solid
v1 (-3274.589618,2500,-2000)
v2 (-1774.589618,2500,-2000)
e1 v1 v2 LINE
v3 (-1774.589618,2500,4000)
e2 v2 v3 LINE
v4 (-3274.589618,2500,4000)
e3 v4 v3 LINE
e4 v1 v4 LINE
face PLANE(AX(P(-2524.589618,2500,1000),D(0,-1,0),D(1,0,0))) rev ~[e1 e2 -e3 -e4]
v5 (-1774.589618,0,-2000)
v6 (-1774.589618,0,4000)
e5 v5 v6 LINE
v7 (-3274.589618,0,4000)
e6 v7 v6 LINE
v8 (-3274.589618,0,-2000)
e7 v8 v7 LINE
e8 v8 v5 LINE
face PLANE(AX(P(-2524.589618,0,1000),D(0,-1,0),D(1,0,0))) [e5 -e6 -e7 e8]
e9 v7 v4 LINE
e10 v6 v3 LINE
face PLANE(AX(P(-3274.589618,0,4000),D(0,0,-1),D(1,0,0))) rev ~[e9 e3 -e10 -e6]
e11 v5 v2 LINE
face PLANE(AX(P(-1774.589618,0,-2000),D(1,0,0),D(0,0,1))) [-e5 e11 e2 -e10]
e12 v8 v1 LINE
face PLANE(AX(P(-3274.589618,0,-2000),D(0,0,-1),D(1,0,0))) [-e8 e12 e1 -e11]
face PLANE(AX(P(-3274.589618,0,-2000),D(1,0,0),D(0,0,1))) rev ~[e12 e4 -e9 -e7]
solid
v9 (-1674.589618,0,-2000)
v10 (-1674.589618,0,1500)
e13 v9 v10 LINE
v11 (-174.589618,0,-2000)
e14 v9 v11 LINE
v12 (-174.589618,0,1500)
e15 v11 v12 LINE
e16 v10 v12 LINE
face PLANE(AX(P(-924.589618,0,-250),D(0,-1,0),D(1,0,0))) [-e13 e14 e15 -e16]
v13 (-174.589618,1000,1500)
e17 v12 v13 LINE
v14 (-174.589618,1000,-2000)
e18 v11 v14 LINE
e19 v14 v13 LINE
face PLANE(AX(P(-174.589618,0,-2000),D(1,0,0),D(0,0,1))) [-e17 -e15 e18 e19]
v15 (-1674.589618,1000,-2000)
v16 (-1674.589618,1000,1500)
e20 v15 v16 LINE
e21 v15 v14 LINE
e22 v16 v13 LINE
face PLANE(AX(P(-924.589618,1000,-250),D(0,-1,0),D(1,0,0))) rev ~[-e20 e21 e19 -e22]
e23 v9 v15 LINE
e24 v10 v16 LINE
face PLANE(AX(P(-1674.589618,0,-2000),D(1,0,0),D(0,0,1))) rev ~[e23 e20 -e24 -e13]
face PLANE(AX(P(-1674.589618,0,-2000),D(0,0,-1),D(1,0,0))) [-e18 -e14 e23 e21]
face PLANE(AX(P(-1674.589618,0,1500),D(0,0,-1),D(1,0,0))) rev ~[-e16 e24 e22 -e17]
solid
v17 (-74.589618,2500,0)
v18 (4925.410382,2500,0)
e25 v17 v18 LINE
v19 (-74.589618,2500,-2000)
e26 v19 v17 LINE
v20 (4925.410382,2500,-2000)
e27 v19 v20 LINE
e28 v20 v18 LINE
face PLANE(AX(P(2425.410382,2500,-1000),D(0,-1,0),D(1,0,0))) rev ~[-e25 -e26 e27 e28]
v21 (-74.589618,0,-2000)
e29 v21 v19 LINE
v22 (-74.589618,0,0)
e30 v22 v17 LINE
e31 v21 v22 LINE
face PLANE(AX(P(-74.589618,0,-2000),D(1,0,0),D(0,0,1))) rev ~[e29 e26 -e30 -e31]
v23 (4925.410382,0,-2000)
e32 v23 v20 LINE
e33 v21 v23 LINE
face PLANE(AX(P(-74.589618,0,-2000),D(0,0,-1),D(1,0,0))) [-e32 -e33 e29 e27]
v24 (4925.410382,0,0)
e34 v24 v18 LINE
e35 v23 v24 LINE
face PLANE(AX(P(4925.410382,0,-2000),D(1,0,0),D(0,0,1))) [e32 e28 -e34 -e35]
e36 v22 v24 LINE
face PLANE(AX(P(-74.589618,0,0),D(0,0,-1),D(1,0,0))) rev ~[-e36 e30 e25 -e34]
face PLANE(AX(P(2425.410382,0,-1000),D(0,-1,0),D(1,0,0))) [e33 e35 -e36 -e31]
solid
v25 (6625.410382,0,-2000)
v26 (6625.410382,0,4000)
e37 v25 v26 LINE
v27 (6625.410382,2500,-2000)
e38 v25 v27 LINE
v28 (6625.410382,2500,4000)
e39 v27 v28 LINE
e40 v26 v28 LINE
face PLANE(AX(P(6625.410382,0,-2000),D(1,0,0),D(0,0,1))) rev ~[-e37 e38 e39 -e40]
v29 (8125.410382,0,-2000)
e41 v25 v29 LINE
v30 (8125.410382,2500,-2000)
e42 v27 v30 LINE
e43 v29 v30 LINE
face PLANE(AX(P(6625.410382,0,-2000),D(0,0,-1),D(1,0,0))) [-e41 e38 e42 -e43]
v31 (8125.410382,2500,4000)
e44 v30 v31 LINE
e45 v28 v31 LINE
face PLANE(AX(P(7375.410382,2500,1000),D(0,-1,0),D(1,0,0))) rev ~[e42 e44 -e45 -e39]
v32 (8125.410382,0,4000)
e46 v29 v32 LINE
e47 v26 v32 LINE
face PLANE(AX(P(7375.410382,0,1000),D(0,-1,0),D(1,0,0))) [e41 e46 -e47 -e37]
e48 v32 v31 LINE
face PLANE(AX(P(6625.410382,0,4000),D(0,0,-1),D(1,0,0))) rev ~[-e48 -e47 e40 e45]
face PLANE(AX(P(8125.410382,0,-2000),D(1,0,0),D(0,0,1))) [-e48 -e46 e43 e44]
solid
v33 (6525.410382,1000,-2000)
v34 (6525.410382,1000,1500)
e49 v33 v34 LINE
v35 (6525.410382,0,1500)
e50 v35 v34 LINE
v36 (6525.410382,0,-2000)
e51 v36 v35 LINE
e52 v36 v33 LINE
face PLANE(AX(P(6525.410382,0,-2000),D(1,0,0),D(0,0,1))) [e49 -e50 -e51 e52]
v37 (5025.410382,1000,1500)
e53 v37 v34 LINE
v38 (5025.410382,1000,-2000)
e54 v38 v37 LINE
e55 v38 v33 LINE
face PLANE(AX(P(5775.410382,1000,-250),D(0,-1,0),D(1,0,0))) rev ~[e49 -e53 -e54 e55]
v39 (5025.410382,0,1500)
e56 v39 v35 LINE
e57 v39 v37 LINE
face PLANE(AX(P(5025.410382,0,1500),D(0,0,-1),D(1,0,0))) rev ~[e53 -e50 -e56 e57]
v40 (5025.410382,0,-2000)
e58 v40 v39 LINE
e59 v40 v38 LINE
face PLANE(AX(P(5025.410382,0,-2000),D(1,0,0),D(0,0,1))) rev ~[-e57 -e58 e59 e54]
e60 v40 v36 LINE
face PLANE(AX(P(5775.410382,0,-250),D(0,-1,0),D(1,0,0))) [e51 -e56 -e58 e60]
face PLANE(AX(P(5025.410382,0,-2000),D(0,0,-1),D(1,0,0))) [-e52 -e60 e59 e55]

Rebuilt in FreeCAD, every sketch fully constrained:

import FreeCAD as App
import Part
import Sketcher
from FreeCAD import Vector

doc = App.newDocument("Part")
body = doc.addObject("PartDesign::Body", "Body")

# Sketch on XZ plane
sketch1 = body.newObject("Sketcher::SketchObject", "Sketch")
sketch1.AttachmentSupport = (doc.getObject("XZ_Plane"), [""])
sketch1.MapMode = "FlatFace"
sketch1.addGeometry([
    Part.LineSegment(Vector(-74.589618, 0, 0), Vector(-74.589618, -2000, 0)),
    Part.LineSegment(Vector(-74.589618, -2000, 0), Vector(4925.410382, -2000, 0)),
    Part.LineSegment(Vector(4925.410382, -2000, 0), Vector(4925.410382, 0, 0)),
    Part.LineSegment(Vector(4925.410382, 0, 0), Vector(-74.589618, 0, 0)),
], False)
sketch1.addConstraint([
    Sketcher.Constraint("Coincident", 0, 2, 1, 1),
    Sketcher.Constraint("Coincident", 1, 2, 2, 1),
    Sketcher.Constraint("Coincident", 2, 2, 3, 1),
    Sketcher.Constraint("Coincident", 3, 2, 0, 1),
    Sketcher.Constraint("Vertical", 0),
    Sketcher.Constraint("Horizontal", 1),
    Sketcher.Constraint("Vertical", 2),
    Sketcher.Constraint("Horizontal", 3),
    Sketcher.Constraint("PointOnObject", 2, 2, -1),
    Sketcher.Constraint("DistanceX", 1, 1, 1, 2, 5000.0),
    Sketcher.Constraint("DistanceY", 0, 2, 0, 1, 2000.0),
    Sketcher.Constraint("DistanceX", 0, 2, -1, 1, 74.589618),
])
pad1 = body.newObject("PartDesign::Pad", "Pad")
pad1.Profile = sketch1
pad1.Length = 2500
pad1.Reversed = True
body2 = doc.addObject("PartDesign::Body", "Body001")
body2.AllowCompound = True

# Sketch on XZ plane
sketch2 = body2.newObject("Sketcher::SketchObject", "Sketch001")
sketch2.AttachmentSupport = (doc.getObject("XZ_Plane001"), [""])
sketch2.MapMode = "FlatFace"
sketch2.addGeometry([
    Part.LineSegment(Vector(-1674.589618, 1500, 0), Vector(-1674.589618, -2000, 0)),  # 0
    Part.LineSegment(Vector(-1674.589618, -2000, 0), Vector(-174.589618, -2000, 0)),  # 1
    Part.LineSegment(Vector(-174.589618, -2000, 0), Vector(-174.589618, 1500, 0)),  # 2
    Part.LineSegment(Vector(-174.589618, 1500, 0), Vector(-1674.589618, 1500, 0)),  # 3
    Part.LineSegment(Vector(5025.410382, 1500, 0), Vector(5025.410382, -2000, 0)),  # 4
    Part.LineSegment(Vector(5025.410382, -2000, 0), Vector(6525.410382, -2000, 0)),  # 5
    Part.LineSegment(Vector(6525.410382, -2000, 0), Vector(6525.410382, 1500, 0)),  # 6
    Part.LineSegment(Vector(6525.410382, 1500, 0), Vector(5025.410382, 1500, 0)),  # 7
], False)
sketch2.addConstraint([
    Sketcher.Constraint("Coincident", 0, 2, 1, 1),
    Sketcher.Constraint("Coincident", 1, 2, 2, 1),
    Sketcher.Constraint("Coincident", 2, 2, 3, 1),
    Sketcher.Constraint("Coincident", 3, 2, 0, 1),
    Sketcher.Constraint("Coincident", 4, 2, 5, 1),
    Sketcher.Constraint("Coincident", 5, 2, 6, 1),
    Sketcher.Constraint("Coincident", 6, 2, 7, 1),
    Sketcher.Constraint("Coincident", 7, 2, 4, 1),
    Sketcher.Constraint("Vertical", 0),
    Sketcher.Constraint("Horizontal", 1),
    Sketcher.Constraint("Vertical", 2),
    Sketcher.Constraint("Horizontal", 3),
    Sketcher.Constraint("Vertical", 4),
    Sketcher.Constraint("Horizontal", 5),
    Sketcher.Constraint("Vertical", 6),
    Sketcher.Constraint("Horizontal", 7),
    Sketcher.Constraint("Horizontal", 1, 2, 4, 2),
    Sketcher.Constraint("Horizontal", 3, 2, 6, 2),
    Sketcher.Constraint("Equal", 3, 5),
    Sketcher.Constraint("DistanceX", 1, 1, 1, 2, 1500.0),
    Sketcher.Constraint("DistanceY", 0, 2, 0, 1, 3500.0),
    Sketcher.Constraint("DistanceY", 0, 2, -1, 1, 2000.0),
    Sketcher.Constraint("DistanceX", 1, 2, 4, 2, 5200.0),
    Sketcher.Constraint("DistanceX", 0, 2, -1, 1, 1674.589618),
])
pad2 = body2.newObject("PartDesign::Pad", "Pad001")
pad2.Profile = sketch2
pad2.Length = 1000
pad2.Reversed = True
body3 = doc.addObject("PartDesign::Body", "Body002")
body3.AllowCompound = True

# Sketch on XZ plane
sketch3 = body3.newObject("Sketcher::SketchObject", "Sketch002")
sketch3.AttachmentSupport = (doc.getObject("XZ_Plane002"), [""])
sketch3.MapMode = "FlatFace"
sketch3.addGeometry([
    Part.LineSegment(Vector(-3274.589618, 4000, 0), Vector(-3274.589618, -2000, 0)),  # 0
    Part.LineSegment(Vector(-3274.589618, -2000, 0), Vector(-1774.589618, -2000, 0)),  # 1
    Part.LineSegment(Vector(-1774.589618, -2000, 0), Vector(-1774.589618, 4000, 0)),  # 2
    Part.LineSegment(Vector(-1774.589618, 4000, 0), Vector(-3274.589618, 4000, 0)),  # 3
    Part.LineSegment(Vector(6625.410382, 4000, 0), Vector(6625.410382, -2000, 0)),  # 4
    Part.LineSegment(Vector(6625.410382, -2000, 0), Vector(8125.410382, -2000, 0)),  # 5
    Part.LineSegment(Vector(8125.410382, -2000, 0), Vector(8125.410382, 4000, 0)),  # 6
    Part.LineSegment(Vector(8125.410382, 4000, 0), Vector(6625.410382, 4000, 0)),  # 7
], False)
sketch3.addConstraint([
    Sketcher.Constraint("Coincident", 0, 2, 1, 1),
    Sketcher.Constraint("Coincident", 1, 2, 2, 1),
    Sketcher.Constraint("Coincident", 2, 2, 3, 1),
    Sketcher.Constraint("Coincident", 3, 2, 0, 1),
    Sketcher.Constraint("Coincident", 4, 2, 5, 1),
    Sketcher.Constraint("Coincident", 5, 2, 6, 1),
    Sketcher.Constraint("Coincident", 6, 2, 7, 1),
    Sketcher.Constraint("Coincident", 7, 2, 4, 1),
    Sketcher.Constraint("Vertical", 0),
    Sketcher.Constraint("Horizontal", 1),
    Sketcher.Constraint("Vertical", 2),
    Sketcher.Constraint("Horizontal", 3),
    Sketcher.Constraint("Vertical", 4),
    Sketcher.Constraint("Horizontal", 5),
    Sketcher.Constraint("Vertical", 6),
    Sketcher.Constraint("Horizontal", 7),
    Sketcher.Constraint("Horizontal", 1, 2, 4, 2),
    Sketcher.Constraint("Horizontal", 3, 2, 6, 2),
    Sketcher.Constraint("Equal", 3, 5),
    Sketcher.Constraint("DistanceX", 1, 1, 1, 2, 1500.0),
    Sketcher.Constraint("DistanceY", 0, 2, 0, 1, 6000.0),
    Sketcher.Constraint("DistanceY", 0, 2, -1, 1, 2000.0),
    Sketcher.Constraint("DistanceX", 1, 2, 4, 2, 8400.0),
    Sketcher.Constraint("DistanceX", 1, 2, -1, 1, 1774.589618),
])
pad3 = body3.newObject("PartDesign::Pad", "Pad002")
pad3.Profile = sketch3
pad3.Length = 2500
pad3.Reversed = True

doc.recompute()
